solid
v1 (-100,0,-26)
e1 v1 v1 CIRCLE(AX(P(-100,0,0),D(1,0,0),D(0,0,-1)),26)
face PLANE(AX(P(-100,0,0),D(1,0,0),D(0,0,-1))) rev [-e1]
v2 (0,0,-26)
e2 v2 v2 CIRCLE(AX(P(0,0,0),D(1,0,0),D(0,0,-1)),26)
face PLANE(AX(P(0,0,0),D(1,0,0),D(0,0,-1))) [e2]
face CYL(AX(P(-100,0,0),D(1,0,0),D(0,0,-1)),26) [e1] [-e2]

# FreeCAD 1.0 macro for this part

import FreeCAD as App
import Part
import Sketcher

V = App.Vector

doc = App.newDocument("Part")
body = doc.addObject("PartDesign::Body", "Body")

sketch1 = body.newObject("Sketcher::SketchObject", "Sketch")
sketch1.AttachmentSupport = (doc.getObject("YZ_Plane"), [""])
sketch1.MapMode = "FlatFace"
sketch1.addGeometry(Part.Circle(V(0, 0, 0), V(0, 0, 1), 26), False)
sketch1.addConstraint(Sketcher.Constraint("Coincident", 0, 3, -1, 1))
sketch1.addConstraint(Sketcher.Constraint("Diameter", 0, 52.0))
pad1 = body.newObject("PartDesign::Pad", "Pad")
pad1.Profile = sketch1
pad1.Length = 100
pad1.Reversed = True

doc.recompute()
